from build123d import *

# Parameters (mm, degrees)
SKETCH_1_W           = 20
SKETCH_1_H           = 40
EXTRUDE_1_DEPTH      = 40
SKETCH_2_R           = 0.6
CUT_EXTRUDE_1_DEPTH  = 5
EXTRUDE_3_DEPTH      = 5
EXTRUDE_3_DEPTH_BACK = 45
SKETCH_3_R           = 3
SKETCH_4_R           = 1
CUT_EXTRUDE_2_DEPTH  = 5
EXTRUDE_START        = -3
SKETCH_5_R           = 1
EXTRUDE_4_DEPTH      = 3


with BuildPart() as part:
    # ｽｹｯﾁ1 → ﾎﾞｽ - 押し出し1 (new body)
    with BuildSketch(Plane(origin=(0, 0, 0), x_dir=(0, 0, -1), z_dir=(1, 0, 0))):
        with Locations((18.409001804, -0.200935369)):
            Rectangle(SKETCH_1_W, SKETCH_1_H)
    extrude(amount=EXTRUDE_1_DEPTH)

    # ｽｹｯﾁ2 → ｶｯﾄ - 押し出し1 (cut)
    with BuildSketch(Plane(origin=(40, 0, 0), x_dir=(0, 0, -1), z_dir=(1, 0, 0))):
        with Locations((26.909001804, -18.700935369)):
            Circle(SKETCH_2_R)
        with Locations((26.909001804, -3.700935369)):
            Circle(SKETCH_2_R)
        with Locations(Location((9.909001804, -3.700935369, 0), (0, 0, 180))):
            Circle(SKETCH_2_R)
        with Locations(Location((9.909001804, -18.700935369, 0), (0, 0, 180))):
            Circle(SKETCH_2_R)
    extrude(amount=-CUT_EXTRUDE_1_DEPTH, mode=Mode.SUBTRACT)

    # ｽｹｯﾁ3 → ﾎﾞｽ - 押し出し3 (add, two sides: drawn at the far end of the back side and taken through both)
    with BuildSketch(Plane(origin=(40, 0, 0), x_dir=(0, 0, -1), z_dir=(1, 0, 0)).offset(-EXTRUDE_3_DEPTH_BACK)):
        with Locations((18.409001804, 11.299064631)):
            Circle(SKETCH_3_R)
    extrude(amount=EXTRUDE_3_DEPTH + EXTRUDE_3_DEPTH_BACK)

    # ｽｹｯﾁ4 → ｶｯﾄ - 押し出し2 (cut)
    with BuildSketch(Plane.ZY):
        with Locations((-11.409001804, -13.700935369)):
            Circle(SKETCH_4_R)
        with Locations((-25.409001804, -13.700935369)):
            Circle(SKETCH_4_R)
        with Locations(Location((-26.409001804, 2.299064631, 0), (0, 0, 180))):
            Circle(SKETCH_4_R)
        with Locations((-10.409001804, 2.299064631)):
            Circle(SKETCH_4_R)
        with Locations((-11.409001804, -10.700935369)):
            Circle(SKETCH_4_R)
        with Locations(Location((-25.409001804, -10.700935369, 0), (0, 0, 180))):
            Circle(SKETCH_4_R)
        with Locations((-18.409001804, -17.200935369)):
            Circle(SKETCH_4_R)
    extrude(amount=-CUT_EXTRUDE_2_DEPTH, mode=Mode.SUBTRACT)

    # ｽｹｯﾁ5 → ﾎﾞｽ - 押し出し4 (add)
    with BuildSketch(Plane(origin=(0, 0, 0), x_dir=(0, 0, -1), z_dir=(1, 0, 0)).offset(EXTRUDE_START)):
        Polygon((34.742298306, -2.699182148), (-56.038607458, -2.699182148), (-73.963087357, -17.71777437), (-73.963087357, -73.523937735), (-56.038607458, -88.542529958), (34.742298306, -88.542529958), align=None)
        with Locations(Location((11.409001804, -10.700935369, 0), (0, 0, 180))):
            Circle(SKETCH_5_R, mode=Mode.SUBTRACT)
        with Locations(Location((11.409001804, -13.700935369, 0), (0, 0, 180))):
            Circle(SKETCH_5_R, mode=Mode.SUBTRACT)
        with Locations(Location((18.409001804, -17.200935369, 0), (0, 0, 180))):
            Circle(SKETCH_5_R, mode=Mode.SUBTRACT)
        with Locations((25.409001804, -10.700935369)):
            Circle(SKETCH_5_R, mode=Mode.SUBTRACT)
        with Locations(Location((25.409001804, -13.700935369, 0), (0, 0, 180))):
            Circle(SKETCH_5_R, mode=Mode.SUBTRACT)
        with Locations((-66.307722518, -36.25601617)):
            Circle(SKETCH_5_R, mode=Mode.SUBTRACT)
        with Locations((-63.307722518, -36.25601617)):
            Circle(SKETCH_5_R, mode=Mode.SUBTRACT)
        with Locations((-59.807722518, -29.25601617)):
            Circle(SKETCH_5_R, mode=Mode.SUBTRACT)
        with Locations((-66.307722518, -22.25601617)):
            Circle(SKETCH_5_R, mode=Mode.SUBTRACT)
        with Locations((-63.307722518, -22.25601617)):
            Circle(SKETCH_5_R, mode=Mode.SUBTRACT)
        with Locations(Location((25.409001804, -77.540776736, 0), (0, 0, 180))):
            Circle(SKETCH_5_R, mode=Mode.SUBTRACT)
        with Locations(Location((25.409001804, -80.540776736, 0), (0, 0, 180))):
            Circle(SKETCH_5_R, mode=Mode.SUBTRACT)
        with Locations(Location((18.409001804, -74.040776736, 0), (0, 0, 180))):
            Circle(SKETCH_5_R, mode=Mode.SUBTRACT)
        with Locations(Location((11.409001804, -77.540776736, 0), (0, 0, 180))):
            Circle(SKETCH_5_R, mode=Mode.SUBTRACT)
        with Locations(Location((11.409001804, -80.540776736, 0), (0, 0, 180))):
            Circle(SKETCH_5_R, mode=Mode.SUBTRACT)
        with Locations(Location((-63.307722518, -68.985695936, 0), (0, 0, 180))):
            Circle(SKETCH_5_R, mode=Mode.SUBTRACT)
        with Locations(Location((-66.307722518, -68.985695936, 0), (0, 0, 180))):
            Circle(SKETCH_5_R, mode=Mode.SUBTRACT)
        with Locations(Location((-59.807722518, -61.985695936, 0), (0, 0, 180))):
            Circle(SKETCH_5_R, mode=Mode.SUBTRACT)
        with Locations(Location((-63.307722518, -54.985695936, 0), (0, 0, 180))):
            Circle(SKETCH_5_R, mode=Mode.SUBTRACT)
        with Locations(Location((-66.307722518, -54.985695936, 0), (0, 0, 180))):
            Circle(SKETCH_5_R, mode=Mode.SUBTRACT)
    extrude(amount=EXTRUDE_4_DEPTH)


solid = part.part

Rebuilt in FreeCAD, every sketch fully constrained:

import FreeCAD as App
import Part
import Sketcher

V = App.Vector


def add_polygon(sketch, points):
    """Adds a closed chain of lines whose ends are joined by coincident constraints."""
    first, n = sketch.GeometryCount, len(points)
    for a, b in zip(points, points[1:] + points[:1]):
        sketch.addGeometry(Part.LineSegment(App.Vector(*a, 0), App.Vector(*b, 0)), False)
    for i in range(n):
        sketch.addConstraint(Sketcher.Constraint("Coincident", first + i, 2, first + (i + 1) % n, 1))

doc = App.newDocument("Part")
body = doc.addObject("PartDesign::Body", "Body")

# Sketch on YZ plane
sketch1 = body.newObject("Sketcher::SketchObject", "Sketch")
sketch1.AttachmentSupport = (doc.getObject("YZ_Plane"), [""])
sketch1.MapMode = "FlatFace"
add_polygon(sketch1, [(20, -8), (-20, -8), (-20, -28), (20, -28)])  # lines 0-3
sketch1.addConstraint(Sketcher.Constraint("Horizontal", 0))
sketch1.addConstraint(Sketcher.Constraint("Vertical", 1))
sketch1.addConstraint(Sketcher.Constraint("Horizontal", 2))
sketch1.addConstraint(Sketcher.Constraint("Vertical", 3))
sketch1.addConstraint(Sketcher.Constraint("DistanceX", 0, 2, 0, 1, 40.0))
sketch1.addConstraint(Sketcher.Constraint("DistanceY", 1, 2, 1, 1, 20.0))
sketch1.addConstraint(Sketcher.Constraint("DistanceY", 0, 2, -1, 1, 8.409002))
sketch1.addConstraint(Sketcher.Constraint("DistanceX", 0, 2, -1, 1, 20.200935))
pad1 = body.newObject("PartDesign::Pad", "Pad")
pad1.Profile = sketch1
pad1.Length = 40

# Sketch on YZ plane
sketch2 = body.newObject("Sketcher::SketchObject", "Sketch001")
sketch2.AttachmentSupport = (doc.getObject("YZ_Plane"), [""])
sketch2.MapMode = "FlatFace"
sketch2.AttachmentOffset = App.Placement(V(0, 0, 40), App.Rotation())
sketch2.addGeometry(Part.Circle(V(-18.7, -26.9, 0), V(0, 0, 1), 0.6), False)
sketch2.addGeometry(Part.Circle(V(-3.7, -26.9, 0), V(0, 0, 1), 0.6), False)
sketch2.addGeometry(Part.Circle(V(-3.7, -9.9, 0), V(0, 0, 1), 0.6), False)
sketch2.addGeometry(Part.Circle(V(-18.7, -9.9, 0), V(0, 0, 1), 0.6), False)
sketch2.addConstraint(Sketcher.Constraint("Equal", 0, 1))
sketch2.addConstraint(Sketcher.Constraint("Equal", 1, 2))
sketch2.addConstraint(Sketcher.Constraint("Equal", 2, 3))
sketch2.addConstraint(Sketcher.Constraint("Horizontal", 0, 3, 1, 3))
sketch2.addConstraint(Sketcher.Constraint("Horizontal", 2, 3, 3, 3))
sketch2.addConstraint(Sketcher.Constraint("Vertical", 1, 3, 2, 3))
sketch2.addConstraint(Sketcher.Constraint("Vertical", 0, 3, 3, 3))
sketch2.addConstraint(Sketcher.Constraint("Diameter", 0, 1.2))
sketch2.addConstraint(Sketcher.Constraint("DistanceX", 0, 3, 1, 3, 15.0))
sketch2.addConstraint(Sketcher.Constraint("DistanceY", 1, 3, 2, 3, 17.0))
sketch2.addConstraint(Sketcher.Constraint("DistanceY", 0, 3, -1, 1, 26.909002))
sketch2.addConstraint(Sketcher.Constraint("DistanceX", 0, 3, -1, 1, 18.700935))
pocket1 = body.newObject("PartDesign::Pocket", "Pocket")
pocket1.Profile = sketch2
pocket1.Length = 5

# Sketch on YZ plane
sketch3 = body.newObject("Sketcher::SketchObject", "Sketch002")
sketch3.AttachmentSupport = (doc.getObject("YZ_Plane"), [""])
sketch3.MapMode = "FlatFace"
sketch3.AttachmentOffset = App.Placement(V(0, 0, 40), App.Rotation())
sketch3.addGeometry(Part.Circle(V(11.3, -18.4, 0), V(0, 0, 1), 3), False)
sketch3.addConstraint(Sketcher.Constraint("Diameter", 0, 6.0))
sketch3.addConstraint(Sketcher.Constraint("DistanceY", 0, 3, -1, 1, 18.409002))
sketch3.addConstraint(Sketcher.Constraint("DistanceX", -1, 1, 0, 3, 11.299065))
pad2 = body.newObject("PartDesign::Pad", "Pad001")
pad2.Profile = sketch3
pad2.Type = "TwoLengths"
pad2.Length = 5
pad2.Length2 = 45

# Sketch on YZ plane
sketch4 = body.newObject("Sketcher::SketchObject", "Sketch003")
sketch4.AttachmentSupport = (doc.getObject("YZ_Plane"), [""])
sketch4.MapMode = "FlatFace"
sketch4.addGeometry(Part.Circle(V(-13.7, -11.4, 0), V(0, 0, 1), 1), False)
sketch4.addGeometry(Part.Circle(V(-13.7, -25.4, 0), V(0, 0, 1), 1), False)
sketch4.addGeometry(Part.Circle(V(2.3, -26.4, 0), V(0, 0, 1), 1), False)
sketch4.addGeometry(Part.Circle(V(2.3, -10.4, 0), V(0, 0, 1), 1), False)
sketch4.addGeometry(Part.Circle(V(-10.7, -11.4, 0), V(0, 0, 1), 1), False)
sketch4.addGeometry(Part.Circle(V(-10.7, -25.4, 0), V(0, 0, 1), 1), False)
sketch4.addGeometry(Part.Circle(V(-17.2, -18.4, 0), V(0, 0, 1), 1), False)
sketch4.addConstraint(Sketcher.Constraint("Equal", 0, 1))
sketch4.addConstraint(Sketcher.Constraint("Equal", 1, 2))
sketch4.addConstraint(Sketcher.Constraint("Equal", 2, 3))
sketch4.addConstraint(Sketcher.Constraint("Equal", 3, 4))
sketch4.addConstraint(Sketcher.Constraint("Equal", 4, 5))
sketch4.addConstraint(Sketcher.Constraint("Equal", 5, 6))
sketch4.addConstraint(Sketcher.Constraint("Horizontal", 0, 3, 4, 3))
sketch4.addConstraint(Sketcher.Constraint("Horizontal", 1, 3, 5, 3))
sketch4.addConstraint(Sketcher.Constraint("Vertical", 0, 3, 1, 3))
sketch4.addConstraint(Sketcher.Constraint("Vertical", 2, 3, 3, 3))
sketch4.addConstraint(Sketcher.Constraint("Vertical", 4, 3, 5, 3))
sketch4.addConstraint(Sketcher.Constraint("Diameter", 0, 2.0))
sketch4.addConstraint(Sketcher.Constraint("DistanceY", 1, 3, 0, 3, 14.0))
sketch4.addConstraint(Sketcher.Constraint("DistanceX", 1, 3, 2, 3, 16.0))
sketch4.addConstraint(Sketcher.Constraint("DistanceY", 2, 3, 1, 3, 1.0))
sketch4.addConstraint(Sketcher.Constraint("DistanceY", 2, 3, 3, 3, 16.0))
sketch4.addConstraint(Sketcher.Constraint("DistanceX", 0, 3, 4, 3, 3.0))
sketch4.addConstraint(Sketcher.Constraint("DistanceY", 6, 3, 0, 3, 7.0))
sketch4.addConstraint(Sketcher.Constraint("DistanceX", 6, 3, 0, 3, 3.5))
sketch4.addConstraint(Sketcher.Constraint("DistanceY", 0, 3, -1, 1, 11.409002))
sketch4.addConstraint(Sketcher.Constraint("DistanceX", 0, 3, -1, 1, 13.700935))
pocket2 = body.newObject("PartDesign::Pocket", "Pocket001")
pocket2.Profile = sketch4
pocket2.Length = 5
pocket2.Reversed = True

# Sketch on YZ plane
sketch5 = body.newObject("Sketcher::SketchObject", "Sketch004")
sketch5.AttachmentSupport = (doc.getObject("YZ_Plane"), [""])
sketch5.MapMode = "FlatFace"
sketch5.AttachmentOffset = App.Placement(V(0, 0, -3), App.Rotation())
add_polygon(sketch5, [(-2.7, -34.7), (-2.7, 56), (-17.7, 74), (-73.5, 74), (-88.5, 56), (-88.5, -34.7)])  # lines 0-5
sketch5.addGeometry(Part.Circle(V(-69, 66.3, 0), V(0, 0, 1), 1), False)  # 6
sketch5.addGeometry(Part.Circle(V(-69, 63.3, 0), V(0, 0, 1), 1), False)  # 7
sketch5.addGeometry(Part.Circle(V(-62, 59.8, 0), V(0, 0, 1), 1), False)  # 8
sketch5.addGeometry(Part.Circle(V(-55, 66.3, 0), V(0, 0, 1), 1), False)  # 9
sketch5.addGeometry(Part.Circle(V(-55, 63.3, 0), V(0, 0, 1), 1), False)  # 10
sketch5.addGeometry(Part.Circle(V(-80.5, -11.4, 0), V(0, 0, 1), 1), False)  # 11
sketch5.addGeometry(Part.Circle(V(-77.5, -11.4, 0), V(0, 0, 1), 1), False)  # 12
sketch5.addGeometry(Part.Circle(V(-80.5, -25.4, 0), V(0, 0, 1), 1), False)  # 13
sketch5.addGeometry(Part.Circle(V(-77.5, -25.4, 0), V(0, 0, 1), 1), False)  # 14
sketch5.addGeometry(Part.Circle(V(-74, -18.4, 0), V(0, 0, 1), 1), False)  # 15
sketch5.addGeometry(Part.Circle(V(-36.3, 66.3, 0), V(0, 0, 1), 1), False)  # 16
sketch5.addGeometry(Part.Circle(V(-36.3, 63.3, 0), V(0, 0, 1), 1), False)  # 17
sketch5.addGeometry(Part.Circle(V(-29.3, 59.8, 0), V(0, 0, 1), 1), False)  # 18
sketch5.addGeometry(Part.Circle(V(-22.3, 66.3, 0), V(0, 0, 1), 1), False)  # 19
sketch5.addGeometry(Part.Circle(V(-22.3, 63.3, 0), V(0, 0, 1), 1), False)  # 20
sketch5.addGeometry(Part.Circle(V(-13.7, -11.4, 0), V(0, 0, 1), 1), False)  # 21
sketch5.addGeometry(Part.Circle(V(-10.7, -11.4, 0), V(0, 0, 1), 1), False)  # 22
sketch5.addGeometry(Part.Circle(V(-17.2, -18.4, 0), V(0, 0, 1), 1), False)  # 23
sketch5.addGeometry(Part.Circle(V(-13.7, -25.4, 0), V(0, 0, 1), 1), False)  # 24
sketch5.addGeometry(Part.Circle(V(-10.7, -25.4, 0), V(0, 0, 1), 1), False)  # 25
sketch5.addConstraint(Sketcher.Constraint("Vertical", 0))
sketch5.addConstraint(Sketcher.Constraint("Horizontal", 2))
sketch5.addConstraint(Sketcher.Constraint("Vertical", 4))
sketch5.addConstraint(Sketcher.Constraint("Horizontal", 5))
sketch5.addConstraint(Sketcher.Constraint("Equal", 6, 7))
sketch5.addConstraint(Sketcher.Constraint("Equal", 7, 8))
sketch5.addConstraint(Sketcher.Constraint("Equal", 8, 9))
sketch5.addConstraint(Sketcher.Constraint("Equal", 9, 10))
sketch5.addConstraint(Sketcher.Constraint("Equal", 10, 11))
sketch5.addConstraint(Sketcher.Constraint("Equal", 11, 12))
sketch5.addConstraint(Sketcher.Constraint("Equal", 12, 13))
sketch5.addConstraint(Sketcher.Constraint("Equal", 13, 14))
sketch5.addConstraint(Sketcher.Constraint("Equal", 14, 15))
sketch5.addConstraint(Sketcher.Constraint("Equal", 15, 16))
sketch5.addConstraint(Sketcher.Constraint("Equal", 16, 17))
sketch5.addConstraint(Sketcher.Constraint("Equal", 17, 18))
sketch5.addConstraint(Sketcher.Constraint("Equal", 18, 19))
sketch5.addConstraint(Sketcher.Constraint("Equal", 19, 20))
sketch5.addConstraint(Sketcher.Constraint("Equal", 20, 21))
sketch5.addConstraint(Sketcher.Constraint("Equal", 21, 22))
sketch5.addConstraint(Sketcher.Constraint("Equal", 22, 23))
sketch5.addConstraint(Sketcher.Constraint("Equal", 23, 24))
sketch5.addConstraint(Sketcher.Constraint("Equal", 24, 25))
sketch5.addConstraint(Sketcher.Constraint("Horizontal", 6, 3, 9, 3))
sketch5.addConstraint(Sketcher.Constraint("Horizontal", 7, 3, 10, 3))
sketch5.addConstraint(Sketcher.Constraint("Horizontal", 11, 3, 12, 3))
sketch5.addConstraint(Sketcher.Constraint("Horizontal", 13, 3, 14, 3))
sketch5.addConstraint(Sketcher.Constraint("Horizontal", 9, 3, 16, 3))
sketch5.addConstraint(Sketcher.Constraint("Horizontal", 10, 3, 17, 3))
sketch5.addConstraint(Sketcher.Constraint("Horizontal", 8, 3, 18, 3))
sketch5.addConstraint(Sketcher.Constraint("Horizontal", 16, 3, 19, 3))
sketch5.addConstraint(Sketcher.Constraint("Horizontal", 17, 3, 20, 3))
sketch5.addConstraint(Sketcher.Constraint("Horizontal", 12, 3, 21, 3))
sketch5.addConstraint(Sketcher.Constraint("Horizontal", 21, 3, 22, 3))
sketch5.addConstraint(Sketcher.Constraint("Horizontal", 15, 3, 23, 3))
sketch5.addConstraint(Sketcher.Constraint("Horizontal", 14, 3, 24, 3))
sketch5.addConstraint(Sketcher.Constraint("Horizontal", 24, 3, 25, 3))
sketch5.addConstraint(Sketcher.Constraint("Horizontal", 0, 2, 3, 2))
sketch5.addConstraint(Sketcher.Constraint("Vertical", 6, 3, 7, 3))
sketch5.addConstraint(Sketcher.Constraint("Vertical", 9, 3, 10, 3))
sketch5.addConstraint(Sketcher.Constraint("Vertical", 11, 3, 13, 3))
sketch5.addConstraint(Sketcher.Constraint("Vertical", 12, 3, 14, 3))
sketch5.addConstraint(Sketcher.Constraint("Vertical", 16, 3, 17, 3))
sketch5.addConstraint(Sketcher.Constraint("Vertical", 19, 3, 20, 3))
sketch5.addConstraint(Sketcher.Constraint("Vertical", 21, 3, 24, 3))
sketch5.addConstraint(Sketcher.Constraint("Vertical", 22, 3, 25, 3))
sketch5.addConstraint(Sketcher.Constraint("Equal", 1, 3))
sketch5.addConstraint(Sketcher.Constraint("Diameter", 6, 2.0))
sketch5.addConstraint(Sketcher.Constraint("DistanceY", 7, 3, 6, 3, 3.0))
sketch5.addConstraint(Sketcher.Constraint("DistanceX", 7, 3, 8, 3, 7.0))
sketch5.addConstraint(Sketcher.Constraint("DistanceX", 8, 3, 9, 3, 7.0))
sketch5.addConstraint(Sketcher.Constraint("DistanceX", 11, 3, 12, 3, 3.0))
sketch5.addConstraint(Sketcher.Constraint("DistanceY", 13, 3, 11, 3, 14.0))
sketch5.addConstraint(Sketcher.Constraint("DistanceY", 15, 3, 12, 3, 7.0))
sketch5.addConstraint(Sketcher.Constraint("DistanceX", 17, 3, 18, 3, 7.0))
sketch5.addConstraint(Sketcher.Constraint("DistanceX", 18, 3, 19, 3, 7.0))
sketch5.addConstraint(Sketcher.Constraint("DistanceX", 21, 3, 22, 3, 3.0))
sketch5.addConstraint(Sketcher.Constraint("DistanceY", 8, 3, 7, 3, 3.5))
sketch5.addConstraint(Sketcher.Constraint("DistanceX", 12, 3, 15, 3, 3.5))
sketch5.addConstraint(Sketcher.Constraint("DistanceX", 23, 3, 21, 3, 3.5))
sketch5.addConstraint(Sketcher.Constraint("DistanceY", 11, 3, -1, 1, 11.409002))
sketch5.addConstraint(Sketcher.Constraint("DistanceY", 4, 2, -1, 1, 34.742298))
sketch5.addConstraint(Sketcher.Constraint("Distance", 1, 23.384719))
sketch5.addConstraint(Sketcher.Constraint("DistanceX", 2, 2, 2, 1, 55.806163))
sketch5.addConstraint(Sketcher.Constraint("DistanceX", 5, 1, 5, 2, 85.843348))
sketch5.addConstraint(Sketcher.Constraint("DistanceY", 0, 1, 0, 2, 90.780906))
sketch5.addConstraint(Sketcher.Constraint("DistanceX", 3, 2, -1, 1, 88.54253))
sketch5.addConstraint(Sketcher.Constraint("DistanceX", 11, 3, 8, 3, 18.555081))
sketch5.addConstraint(Sketcher.Constraint("DistanceX", 9, 3, 16, 3, 18.72968))
sketch5.addConstraint(Sketcher.Constraint("DistanceX", 15, 3, 21, 3, 60.339841))
sketch5.addConstraint(Sketcher.Constraint("DistanceX", 19, 3, 1, 2, 4.538242))
sketch5.addConstraint(Sketcher.Constraint("DistanceY", -1, 1, 6, 3, 66.307723))
pad3 = body.newObject("PartDesign::Pad", "Pad002")
pad3.Profile = sketch5
pad3.Length = 3

doc.recompute()
